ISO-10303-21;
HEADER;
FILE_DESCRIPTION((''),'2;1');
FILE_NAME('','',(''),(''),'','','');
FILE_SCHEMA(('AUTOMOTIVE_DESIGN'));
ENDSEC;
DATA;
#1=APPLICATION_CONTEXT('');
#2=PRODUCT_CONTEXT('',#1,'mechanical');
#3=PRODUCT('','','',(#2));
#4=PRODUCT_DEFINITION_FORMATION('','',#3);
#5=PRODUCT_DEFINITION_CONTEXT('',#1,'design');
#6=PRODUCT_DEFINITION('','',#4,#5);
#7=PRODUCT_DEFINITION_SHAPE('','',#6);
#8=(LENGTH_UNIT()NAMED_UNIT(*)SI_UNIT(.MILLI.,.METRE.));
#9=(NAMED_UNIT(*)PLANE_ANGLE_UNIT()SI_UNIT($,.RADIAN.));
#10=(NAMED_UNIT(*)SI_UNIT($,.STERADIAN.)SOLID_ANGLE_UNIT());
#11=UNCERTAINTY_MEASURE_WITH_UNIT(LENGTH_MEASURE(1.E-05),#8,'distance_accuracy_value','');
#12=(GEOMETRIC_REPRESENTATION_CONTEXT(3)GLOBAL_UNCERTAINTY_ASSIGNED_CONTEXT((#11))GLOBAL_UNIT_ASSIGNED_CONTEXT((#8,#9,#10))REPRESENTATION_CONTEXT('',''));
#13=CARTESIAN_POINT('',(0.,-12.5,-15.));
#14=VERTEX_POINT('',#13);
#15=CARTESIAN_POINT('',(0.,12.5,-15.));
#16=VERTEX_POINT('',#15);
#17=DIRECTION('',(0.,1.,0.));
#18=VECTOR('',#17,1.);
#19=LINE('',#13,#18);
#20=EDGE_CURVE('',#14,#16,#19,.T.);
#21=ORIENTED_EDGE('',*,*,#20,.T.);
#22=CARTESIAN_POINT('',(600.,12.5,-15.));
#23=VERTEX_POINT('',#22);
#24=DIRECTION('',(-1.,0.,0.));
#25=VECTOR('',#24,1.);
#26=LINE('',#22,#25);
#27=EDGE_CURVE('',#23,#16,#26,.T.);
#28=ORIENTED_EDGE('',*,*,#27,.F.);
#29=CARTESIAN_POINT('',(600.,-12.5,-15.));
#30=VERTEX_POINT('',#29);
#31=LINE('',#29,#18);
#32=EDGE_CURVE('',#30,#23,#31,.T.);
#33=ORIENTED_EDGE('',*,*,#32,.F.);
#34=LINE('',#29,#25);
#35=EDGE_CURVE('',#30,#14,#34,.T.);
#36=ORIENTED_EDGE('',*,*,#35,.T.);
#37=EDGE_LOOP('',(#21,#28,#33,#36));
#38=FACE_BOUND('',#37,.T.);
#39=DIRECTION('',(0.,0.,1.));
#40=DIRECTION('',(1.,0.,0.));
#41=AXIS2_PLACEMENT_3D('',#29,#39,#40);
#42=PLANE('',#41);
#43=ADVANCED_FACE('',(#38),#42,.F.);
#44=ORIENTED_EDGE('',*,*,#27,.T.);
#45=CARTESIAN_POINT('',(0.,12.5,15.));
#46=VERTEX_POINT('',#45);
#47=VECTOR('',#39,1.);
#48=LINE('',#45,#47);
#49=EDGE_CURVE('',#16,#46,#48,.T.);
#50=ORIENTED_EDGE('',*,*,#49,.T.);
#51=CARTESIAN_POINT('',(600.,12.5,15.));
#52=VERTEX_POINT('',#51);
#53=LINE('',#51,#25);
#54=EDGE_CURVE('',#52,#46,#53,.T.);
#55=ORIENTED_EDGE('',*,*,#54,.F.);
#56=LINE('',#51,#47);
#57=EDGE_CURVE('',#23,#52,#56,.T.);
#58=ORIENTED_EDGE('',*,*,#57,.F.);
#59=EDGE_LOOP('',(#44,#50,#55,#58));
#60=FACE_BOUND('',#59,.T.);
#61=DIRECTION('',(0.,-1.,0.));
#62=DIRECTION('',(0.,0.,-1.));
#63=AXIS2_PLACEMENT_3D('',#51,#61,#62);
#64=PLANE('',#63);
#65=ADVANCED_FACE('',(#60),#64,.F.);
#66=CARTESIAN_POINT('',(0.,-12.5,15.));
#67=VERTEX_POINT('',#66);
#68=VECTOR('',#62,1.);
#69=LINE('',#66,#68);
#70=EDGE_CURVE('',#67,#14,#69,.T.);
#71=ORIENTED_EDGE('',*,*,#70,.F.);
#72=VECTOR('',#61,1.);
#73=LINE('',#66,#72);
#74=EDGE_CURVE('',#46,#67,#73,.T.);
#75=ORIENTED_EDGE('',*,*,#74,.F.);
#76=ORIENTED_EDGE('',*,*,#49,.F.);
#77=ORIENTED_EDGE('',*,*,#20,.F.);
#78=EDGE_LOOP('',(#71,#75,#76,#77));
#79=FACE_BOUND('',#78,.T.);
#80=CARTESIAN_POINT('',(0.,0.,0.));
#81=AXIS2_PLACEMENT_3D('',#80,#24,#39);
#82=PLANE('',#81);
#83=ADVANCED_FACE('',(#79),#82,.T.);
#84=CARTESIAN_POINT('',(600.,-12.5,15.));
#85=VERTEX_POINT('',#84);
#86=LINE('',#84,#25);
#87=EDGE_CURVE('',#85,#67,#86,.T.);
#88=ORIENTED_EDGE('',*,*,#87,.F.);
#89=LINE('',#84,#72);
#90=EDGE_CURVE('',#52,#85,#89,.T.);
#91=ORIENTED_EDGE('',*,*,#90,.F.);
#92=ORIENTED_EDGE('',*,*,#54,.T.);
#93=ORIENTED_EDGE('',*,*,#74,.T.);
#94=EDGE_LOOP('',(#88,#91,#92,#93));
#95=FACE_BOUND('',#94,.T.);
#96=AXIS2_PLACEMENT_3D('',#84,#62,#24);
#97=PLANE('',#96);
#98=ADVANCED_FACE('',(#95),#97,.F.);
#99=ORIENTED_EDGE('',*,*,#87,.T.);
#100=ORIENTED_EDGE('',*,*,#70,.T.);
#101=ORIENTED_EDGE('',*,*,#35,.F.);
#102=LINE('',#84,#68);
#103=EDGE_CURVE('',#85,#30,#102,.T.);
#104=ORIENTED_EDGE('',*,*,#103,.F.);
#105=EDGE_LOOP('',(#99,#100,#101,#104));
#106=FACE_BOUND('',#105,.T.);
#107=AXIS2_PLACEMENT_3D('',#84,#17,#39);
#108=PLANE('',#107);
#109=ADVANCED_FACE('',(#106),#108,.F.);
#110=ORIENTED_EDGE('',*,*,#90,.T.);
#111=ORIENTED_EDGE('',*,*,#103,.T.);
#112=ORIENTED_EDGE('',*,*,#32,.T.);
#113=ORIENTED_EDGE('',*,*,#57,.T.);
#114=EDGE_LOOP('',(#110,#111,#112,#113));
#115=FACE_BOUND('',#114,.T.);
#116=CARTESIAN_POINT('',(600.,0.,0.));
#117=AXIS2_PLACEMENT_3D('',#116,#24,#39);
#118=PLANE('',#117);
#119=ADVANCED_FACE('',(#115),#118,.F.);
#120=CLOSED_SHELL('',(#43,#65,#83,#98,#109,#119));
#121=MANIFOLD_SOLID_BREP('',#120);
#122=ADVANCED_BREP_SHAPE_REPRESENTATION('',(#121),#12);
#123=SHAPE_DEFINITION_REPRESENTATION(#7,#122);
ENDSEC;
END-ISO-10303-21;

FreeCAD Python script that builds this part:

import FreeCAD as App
import Part
import Sketcher
from FreeCAD import Vector
Q = App.Units.Quantity

doc = App.newDocument("Part")
body = doc.addObject("PartDesign::Body", "Body")

# Sketch on YZ plane
sketch1 = doc.addObject("Sketcher::SketchObject", "Sketch")
body.addObject(sketch1)
sketch1.AttachmentSupport = (doc.YZ_Plane, [""])
sketch1.MapMode = "FlatFace"
sketch1.addGeometry(Part.LineSegment(Vector(12, 15, 0), Vector(-12, 15, 0)), False)
sketch1.addGeometry(Part.LineSegment(Vector(-12, 15, 0), Vector(-12, -15, 0)), False)
sketch1.addGeometry(Part.LineSegment(Vector(-12, -15, 0), Vector(12, -15, 0)), False)
sketch1.addGeometry(Part.LineSegment(Vector(12, -15, 0), Vector(12, 15, 0)), False)
sketch1.addConstraint(Sketcher.Constraint("Coincident", 0, 2, 1, 1))
sketch1.addConstraint(Sketcher.Constraint("Coincident", 1, 2, 2, 1))
sketch1.addConstraint(Sketcher.Constraint("Coincident", 2, 2, 3, 1))
sketch1.addConstraint(Sketcher.Constraint("Coincident", 3, 2, 0, 1))
sketch1.addConstraint(Sketcher.Constraint("Horizontal", 0))
sketch1.addConstraint(Sketcher.Constraint("Vertical", 1))
sketch1.addConstraint(Sketcher.Constraint("Horizontal", 2))
sketch1.addConstraint(Sketcher.Constraint("Vertical", 3))
sketch1.addConstraint(Sketcher.Constraint("Symmetric", 0, 2, 2, 2, -1, 1))
sketch1.addConstraint(Sketcher.Constraint("DistanceX", 0, 2, 0, 1, Q("25 mm")))
sketch1.addConstraint(Sketcher.Constraint("DistanceY", 1, 2, 1, 1, Q("30 mm")))
pad1 = doc.addObject("PartDesign::Pad", "Pad")
body.addObject(pad1)
pad1.Profile = sketch1
pad1.Length = 600

doc.recompute()
